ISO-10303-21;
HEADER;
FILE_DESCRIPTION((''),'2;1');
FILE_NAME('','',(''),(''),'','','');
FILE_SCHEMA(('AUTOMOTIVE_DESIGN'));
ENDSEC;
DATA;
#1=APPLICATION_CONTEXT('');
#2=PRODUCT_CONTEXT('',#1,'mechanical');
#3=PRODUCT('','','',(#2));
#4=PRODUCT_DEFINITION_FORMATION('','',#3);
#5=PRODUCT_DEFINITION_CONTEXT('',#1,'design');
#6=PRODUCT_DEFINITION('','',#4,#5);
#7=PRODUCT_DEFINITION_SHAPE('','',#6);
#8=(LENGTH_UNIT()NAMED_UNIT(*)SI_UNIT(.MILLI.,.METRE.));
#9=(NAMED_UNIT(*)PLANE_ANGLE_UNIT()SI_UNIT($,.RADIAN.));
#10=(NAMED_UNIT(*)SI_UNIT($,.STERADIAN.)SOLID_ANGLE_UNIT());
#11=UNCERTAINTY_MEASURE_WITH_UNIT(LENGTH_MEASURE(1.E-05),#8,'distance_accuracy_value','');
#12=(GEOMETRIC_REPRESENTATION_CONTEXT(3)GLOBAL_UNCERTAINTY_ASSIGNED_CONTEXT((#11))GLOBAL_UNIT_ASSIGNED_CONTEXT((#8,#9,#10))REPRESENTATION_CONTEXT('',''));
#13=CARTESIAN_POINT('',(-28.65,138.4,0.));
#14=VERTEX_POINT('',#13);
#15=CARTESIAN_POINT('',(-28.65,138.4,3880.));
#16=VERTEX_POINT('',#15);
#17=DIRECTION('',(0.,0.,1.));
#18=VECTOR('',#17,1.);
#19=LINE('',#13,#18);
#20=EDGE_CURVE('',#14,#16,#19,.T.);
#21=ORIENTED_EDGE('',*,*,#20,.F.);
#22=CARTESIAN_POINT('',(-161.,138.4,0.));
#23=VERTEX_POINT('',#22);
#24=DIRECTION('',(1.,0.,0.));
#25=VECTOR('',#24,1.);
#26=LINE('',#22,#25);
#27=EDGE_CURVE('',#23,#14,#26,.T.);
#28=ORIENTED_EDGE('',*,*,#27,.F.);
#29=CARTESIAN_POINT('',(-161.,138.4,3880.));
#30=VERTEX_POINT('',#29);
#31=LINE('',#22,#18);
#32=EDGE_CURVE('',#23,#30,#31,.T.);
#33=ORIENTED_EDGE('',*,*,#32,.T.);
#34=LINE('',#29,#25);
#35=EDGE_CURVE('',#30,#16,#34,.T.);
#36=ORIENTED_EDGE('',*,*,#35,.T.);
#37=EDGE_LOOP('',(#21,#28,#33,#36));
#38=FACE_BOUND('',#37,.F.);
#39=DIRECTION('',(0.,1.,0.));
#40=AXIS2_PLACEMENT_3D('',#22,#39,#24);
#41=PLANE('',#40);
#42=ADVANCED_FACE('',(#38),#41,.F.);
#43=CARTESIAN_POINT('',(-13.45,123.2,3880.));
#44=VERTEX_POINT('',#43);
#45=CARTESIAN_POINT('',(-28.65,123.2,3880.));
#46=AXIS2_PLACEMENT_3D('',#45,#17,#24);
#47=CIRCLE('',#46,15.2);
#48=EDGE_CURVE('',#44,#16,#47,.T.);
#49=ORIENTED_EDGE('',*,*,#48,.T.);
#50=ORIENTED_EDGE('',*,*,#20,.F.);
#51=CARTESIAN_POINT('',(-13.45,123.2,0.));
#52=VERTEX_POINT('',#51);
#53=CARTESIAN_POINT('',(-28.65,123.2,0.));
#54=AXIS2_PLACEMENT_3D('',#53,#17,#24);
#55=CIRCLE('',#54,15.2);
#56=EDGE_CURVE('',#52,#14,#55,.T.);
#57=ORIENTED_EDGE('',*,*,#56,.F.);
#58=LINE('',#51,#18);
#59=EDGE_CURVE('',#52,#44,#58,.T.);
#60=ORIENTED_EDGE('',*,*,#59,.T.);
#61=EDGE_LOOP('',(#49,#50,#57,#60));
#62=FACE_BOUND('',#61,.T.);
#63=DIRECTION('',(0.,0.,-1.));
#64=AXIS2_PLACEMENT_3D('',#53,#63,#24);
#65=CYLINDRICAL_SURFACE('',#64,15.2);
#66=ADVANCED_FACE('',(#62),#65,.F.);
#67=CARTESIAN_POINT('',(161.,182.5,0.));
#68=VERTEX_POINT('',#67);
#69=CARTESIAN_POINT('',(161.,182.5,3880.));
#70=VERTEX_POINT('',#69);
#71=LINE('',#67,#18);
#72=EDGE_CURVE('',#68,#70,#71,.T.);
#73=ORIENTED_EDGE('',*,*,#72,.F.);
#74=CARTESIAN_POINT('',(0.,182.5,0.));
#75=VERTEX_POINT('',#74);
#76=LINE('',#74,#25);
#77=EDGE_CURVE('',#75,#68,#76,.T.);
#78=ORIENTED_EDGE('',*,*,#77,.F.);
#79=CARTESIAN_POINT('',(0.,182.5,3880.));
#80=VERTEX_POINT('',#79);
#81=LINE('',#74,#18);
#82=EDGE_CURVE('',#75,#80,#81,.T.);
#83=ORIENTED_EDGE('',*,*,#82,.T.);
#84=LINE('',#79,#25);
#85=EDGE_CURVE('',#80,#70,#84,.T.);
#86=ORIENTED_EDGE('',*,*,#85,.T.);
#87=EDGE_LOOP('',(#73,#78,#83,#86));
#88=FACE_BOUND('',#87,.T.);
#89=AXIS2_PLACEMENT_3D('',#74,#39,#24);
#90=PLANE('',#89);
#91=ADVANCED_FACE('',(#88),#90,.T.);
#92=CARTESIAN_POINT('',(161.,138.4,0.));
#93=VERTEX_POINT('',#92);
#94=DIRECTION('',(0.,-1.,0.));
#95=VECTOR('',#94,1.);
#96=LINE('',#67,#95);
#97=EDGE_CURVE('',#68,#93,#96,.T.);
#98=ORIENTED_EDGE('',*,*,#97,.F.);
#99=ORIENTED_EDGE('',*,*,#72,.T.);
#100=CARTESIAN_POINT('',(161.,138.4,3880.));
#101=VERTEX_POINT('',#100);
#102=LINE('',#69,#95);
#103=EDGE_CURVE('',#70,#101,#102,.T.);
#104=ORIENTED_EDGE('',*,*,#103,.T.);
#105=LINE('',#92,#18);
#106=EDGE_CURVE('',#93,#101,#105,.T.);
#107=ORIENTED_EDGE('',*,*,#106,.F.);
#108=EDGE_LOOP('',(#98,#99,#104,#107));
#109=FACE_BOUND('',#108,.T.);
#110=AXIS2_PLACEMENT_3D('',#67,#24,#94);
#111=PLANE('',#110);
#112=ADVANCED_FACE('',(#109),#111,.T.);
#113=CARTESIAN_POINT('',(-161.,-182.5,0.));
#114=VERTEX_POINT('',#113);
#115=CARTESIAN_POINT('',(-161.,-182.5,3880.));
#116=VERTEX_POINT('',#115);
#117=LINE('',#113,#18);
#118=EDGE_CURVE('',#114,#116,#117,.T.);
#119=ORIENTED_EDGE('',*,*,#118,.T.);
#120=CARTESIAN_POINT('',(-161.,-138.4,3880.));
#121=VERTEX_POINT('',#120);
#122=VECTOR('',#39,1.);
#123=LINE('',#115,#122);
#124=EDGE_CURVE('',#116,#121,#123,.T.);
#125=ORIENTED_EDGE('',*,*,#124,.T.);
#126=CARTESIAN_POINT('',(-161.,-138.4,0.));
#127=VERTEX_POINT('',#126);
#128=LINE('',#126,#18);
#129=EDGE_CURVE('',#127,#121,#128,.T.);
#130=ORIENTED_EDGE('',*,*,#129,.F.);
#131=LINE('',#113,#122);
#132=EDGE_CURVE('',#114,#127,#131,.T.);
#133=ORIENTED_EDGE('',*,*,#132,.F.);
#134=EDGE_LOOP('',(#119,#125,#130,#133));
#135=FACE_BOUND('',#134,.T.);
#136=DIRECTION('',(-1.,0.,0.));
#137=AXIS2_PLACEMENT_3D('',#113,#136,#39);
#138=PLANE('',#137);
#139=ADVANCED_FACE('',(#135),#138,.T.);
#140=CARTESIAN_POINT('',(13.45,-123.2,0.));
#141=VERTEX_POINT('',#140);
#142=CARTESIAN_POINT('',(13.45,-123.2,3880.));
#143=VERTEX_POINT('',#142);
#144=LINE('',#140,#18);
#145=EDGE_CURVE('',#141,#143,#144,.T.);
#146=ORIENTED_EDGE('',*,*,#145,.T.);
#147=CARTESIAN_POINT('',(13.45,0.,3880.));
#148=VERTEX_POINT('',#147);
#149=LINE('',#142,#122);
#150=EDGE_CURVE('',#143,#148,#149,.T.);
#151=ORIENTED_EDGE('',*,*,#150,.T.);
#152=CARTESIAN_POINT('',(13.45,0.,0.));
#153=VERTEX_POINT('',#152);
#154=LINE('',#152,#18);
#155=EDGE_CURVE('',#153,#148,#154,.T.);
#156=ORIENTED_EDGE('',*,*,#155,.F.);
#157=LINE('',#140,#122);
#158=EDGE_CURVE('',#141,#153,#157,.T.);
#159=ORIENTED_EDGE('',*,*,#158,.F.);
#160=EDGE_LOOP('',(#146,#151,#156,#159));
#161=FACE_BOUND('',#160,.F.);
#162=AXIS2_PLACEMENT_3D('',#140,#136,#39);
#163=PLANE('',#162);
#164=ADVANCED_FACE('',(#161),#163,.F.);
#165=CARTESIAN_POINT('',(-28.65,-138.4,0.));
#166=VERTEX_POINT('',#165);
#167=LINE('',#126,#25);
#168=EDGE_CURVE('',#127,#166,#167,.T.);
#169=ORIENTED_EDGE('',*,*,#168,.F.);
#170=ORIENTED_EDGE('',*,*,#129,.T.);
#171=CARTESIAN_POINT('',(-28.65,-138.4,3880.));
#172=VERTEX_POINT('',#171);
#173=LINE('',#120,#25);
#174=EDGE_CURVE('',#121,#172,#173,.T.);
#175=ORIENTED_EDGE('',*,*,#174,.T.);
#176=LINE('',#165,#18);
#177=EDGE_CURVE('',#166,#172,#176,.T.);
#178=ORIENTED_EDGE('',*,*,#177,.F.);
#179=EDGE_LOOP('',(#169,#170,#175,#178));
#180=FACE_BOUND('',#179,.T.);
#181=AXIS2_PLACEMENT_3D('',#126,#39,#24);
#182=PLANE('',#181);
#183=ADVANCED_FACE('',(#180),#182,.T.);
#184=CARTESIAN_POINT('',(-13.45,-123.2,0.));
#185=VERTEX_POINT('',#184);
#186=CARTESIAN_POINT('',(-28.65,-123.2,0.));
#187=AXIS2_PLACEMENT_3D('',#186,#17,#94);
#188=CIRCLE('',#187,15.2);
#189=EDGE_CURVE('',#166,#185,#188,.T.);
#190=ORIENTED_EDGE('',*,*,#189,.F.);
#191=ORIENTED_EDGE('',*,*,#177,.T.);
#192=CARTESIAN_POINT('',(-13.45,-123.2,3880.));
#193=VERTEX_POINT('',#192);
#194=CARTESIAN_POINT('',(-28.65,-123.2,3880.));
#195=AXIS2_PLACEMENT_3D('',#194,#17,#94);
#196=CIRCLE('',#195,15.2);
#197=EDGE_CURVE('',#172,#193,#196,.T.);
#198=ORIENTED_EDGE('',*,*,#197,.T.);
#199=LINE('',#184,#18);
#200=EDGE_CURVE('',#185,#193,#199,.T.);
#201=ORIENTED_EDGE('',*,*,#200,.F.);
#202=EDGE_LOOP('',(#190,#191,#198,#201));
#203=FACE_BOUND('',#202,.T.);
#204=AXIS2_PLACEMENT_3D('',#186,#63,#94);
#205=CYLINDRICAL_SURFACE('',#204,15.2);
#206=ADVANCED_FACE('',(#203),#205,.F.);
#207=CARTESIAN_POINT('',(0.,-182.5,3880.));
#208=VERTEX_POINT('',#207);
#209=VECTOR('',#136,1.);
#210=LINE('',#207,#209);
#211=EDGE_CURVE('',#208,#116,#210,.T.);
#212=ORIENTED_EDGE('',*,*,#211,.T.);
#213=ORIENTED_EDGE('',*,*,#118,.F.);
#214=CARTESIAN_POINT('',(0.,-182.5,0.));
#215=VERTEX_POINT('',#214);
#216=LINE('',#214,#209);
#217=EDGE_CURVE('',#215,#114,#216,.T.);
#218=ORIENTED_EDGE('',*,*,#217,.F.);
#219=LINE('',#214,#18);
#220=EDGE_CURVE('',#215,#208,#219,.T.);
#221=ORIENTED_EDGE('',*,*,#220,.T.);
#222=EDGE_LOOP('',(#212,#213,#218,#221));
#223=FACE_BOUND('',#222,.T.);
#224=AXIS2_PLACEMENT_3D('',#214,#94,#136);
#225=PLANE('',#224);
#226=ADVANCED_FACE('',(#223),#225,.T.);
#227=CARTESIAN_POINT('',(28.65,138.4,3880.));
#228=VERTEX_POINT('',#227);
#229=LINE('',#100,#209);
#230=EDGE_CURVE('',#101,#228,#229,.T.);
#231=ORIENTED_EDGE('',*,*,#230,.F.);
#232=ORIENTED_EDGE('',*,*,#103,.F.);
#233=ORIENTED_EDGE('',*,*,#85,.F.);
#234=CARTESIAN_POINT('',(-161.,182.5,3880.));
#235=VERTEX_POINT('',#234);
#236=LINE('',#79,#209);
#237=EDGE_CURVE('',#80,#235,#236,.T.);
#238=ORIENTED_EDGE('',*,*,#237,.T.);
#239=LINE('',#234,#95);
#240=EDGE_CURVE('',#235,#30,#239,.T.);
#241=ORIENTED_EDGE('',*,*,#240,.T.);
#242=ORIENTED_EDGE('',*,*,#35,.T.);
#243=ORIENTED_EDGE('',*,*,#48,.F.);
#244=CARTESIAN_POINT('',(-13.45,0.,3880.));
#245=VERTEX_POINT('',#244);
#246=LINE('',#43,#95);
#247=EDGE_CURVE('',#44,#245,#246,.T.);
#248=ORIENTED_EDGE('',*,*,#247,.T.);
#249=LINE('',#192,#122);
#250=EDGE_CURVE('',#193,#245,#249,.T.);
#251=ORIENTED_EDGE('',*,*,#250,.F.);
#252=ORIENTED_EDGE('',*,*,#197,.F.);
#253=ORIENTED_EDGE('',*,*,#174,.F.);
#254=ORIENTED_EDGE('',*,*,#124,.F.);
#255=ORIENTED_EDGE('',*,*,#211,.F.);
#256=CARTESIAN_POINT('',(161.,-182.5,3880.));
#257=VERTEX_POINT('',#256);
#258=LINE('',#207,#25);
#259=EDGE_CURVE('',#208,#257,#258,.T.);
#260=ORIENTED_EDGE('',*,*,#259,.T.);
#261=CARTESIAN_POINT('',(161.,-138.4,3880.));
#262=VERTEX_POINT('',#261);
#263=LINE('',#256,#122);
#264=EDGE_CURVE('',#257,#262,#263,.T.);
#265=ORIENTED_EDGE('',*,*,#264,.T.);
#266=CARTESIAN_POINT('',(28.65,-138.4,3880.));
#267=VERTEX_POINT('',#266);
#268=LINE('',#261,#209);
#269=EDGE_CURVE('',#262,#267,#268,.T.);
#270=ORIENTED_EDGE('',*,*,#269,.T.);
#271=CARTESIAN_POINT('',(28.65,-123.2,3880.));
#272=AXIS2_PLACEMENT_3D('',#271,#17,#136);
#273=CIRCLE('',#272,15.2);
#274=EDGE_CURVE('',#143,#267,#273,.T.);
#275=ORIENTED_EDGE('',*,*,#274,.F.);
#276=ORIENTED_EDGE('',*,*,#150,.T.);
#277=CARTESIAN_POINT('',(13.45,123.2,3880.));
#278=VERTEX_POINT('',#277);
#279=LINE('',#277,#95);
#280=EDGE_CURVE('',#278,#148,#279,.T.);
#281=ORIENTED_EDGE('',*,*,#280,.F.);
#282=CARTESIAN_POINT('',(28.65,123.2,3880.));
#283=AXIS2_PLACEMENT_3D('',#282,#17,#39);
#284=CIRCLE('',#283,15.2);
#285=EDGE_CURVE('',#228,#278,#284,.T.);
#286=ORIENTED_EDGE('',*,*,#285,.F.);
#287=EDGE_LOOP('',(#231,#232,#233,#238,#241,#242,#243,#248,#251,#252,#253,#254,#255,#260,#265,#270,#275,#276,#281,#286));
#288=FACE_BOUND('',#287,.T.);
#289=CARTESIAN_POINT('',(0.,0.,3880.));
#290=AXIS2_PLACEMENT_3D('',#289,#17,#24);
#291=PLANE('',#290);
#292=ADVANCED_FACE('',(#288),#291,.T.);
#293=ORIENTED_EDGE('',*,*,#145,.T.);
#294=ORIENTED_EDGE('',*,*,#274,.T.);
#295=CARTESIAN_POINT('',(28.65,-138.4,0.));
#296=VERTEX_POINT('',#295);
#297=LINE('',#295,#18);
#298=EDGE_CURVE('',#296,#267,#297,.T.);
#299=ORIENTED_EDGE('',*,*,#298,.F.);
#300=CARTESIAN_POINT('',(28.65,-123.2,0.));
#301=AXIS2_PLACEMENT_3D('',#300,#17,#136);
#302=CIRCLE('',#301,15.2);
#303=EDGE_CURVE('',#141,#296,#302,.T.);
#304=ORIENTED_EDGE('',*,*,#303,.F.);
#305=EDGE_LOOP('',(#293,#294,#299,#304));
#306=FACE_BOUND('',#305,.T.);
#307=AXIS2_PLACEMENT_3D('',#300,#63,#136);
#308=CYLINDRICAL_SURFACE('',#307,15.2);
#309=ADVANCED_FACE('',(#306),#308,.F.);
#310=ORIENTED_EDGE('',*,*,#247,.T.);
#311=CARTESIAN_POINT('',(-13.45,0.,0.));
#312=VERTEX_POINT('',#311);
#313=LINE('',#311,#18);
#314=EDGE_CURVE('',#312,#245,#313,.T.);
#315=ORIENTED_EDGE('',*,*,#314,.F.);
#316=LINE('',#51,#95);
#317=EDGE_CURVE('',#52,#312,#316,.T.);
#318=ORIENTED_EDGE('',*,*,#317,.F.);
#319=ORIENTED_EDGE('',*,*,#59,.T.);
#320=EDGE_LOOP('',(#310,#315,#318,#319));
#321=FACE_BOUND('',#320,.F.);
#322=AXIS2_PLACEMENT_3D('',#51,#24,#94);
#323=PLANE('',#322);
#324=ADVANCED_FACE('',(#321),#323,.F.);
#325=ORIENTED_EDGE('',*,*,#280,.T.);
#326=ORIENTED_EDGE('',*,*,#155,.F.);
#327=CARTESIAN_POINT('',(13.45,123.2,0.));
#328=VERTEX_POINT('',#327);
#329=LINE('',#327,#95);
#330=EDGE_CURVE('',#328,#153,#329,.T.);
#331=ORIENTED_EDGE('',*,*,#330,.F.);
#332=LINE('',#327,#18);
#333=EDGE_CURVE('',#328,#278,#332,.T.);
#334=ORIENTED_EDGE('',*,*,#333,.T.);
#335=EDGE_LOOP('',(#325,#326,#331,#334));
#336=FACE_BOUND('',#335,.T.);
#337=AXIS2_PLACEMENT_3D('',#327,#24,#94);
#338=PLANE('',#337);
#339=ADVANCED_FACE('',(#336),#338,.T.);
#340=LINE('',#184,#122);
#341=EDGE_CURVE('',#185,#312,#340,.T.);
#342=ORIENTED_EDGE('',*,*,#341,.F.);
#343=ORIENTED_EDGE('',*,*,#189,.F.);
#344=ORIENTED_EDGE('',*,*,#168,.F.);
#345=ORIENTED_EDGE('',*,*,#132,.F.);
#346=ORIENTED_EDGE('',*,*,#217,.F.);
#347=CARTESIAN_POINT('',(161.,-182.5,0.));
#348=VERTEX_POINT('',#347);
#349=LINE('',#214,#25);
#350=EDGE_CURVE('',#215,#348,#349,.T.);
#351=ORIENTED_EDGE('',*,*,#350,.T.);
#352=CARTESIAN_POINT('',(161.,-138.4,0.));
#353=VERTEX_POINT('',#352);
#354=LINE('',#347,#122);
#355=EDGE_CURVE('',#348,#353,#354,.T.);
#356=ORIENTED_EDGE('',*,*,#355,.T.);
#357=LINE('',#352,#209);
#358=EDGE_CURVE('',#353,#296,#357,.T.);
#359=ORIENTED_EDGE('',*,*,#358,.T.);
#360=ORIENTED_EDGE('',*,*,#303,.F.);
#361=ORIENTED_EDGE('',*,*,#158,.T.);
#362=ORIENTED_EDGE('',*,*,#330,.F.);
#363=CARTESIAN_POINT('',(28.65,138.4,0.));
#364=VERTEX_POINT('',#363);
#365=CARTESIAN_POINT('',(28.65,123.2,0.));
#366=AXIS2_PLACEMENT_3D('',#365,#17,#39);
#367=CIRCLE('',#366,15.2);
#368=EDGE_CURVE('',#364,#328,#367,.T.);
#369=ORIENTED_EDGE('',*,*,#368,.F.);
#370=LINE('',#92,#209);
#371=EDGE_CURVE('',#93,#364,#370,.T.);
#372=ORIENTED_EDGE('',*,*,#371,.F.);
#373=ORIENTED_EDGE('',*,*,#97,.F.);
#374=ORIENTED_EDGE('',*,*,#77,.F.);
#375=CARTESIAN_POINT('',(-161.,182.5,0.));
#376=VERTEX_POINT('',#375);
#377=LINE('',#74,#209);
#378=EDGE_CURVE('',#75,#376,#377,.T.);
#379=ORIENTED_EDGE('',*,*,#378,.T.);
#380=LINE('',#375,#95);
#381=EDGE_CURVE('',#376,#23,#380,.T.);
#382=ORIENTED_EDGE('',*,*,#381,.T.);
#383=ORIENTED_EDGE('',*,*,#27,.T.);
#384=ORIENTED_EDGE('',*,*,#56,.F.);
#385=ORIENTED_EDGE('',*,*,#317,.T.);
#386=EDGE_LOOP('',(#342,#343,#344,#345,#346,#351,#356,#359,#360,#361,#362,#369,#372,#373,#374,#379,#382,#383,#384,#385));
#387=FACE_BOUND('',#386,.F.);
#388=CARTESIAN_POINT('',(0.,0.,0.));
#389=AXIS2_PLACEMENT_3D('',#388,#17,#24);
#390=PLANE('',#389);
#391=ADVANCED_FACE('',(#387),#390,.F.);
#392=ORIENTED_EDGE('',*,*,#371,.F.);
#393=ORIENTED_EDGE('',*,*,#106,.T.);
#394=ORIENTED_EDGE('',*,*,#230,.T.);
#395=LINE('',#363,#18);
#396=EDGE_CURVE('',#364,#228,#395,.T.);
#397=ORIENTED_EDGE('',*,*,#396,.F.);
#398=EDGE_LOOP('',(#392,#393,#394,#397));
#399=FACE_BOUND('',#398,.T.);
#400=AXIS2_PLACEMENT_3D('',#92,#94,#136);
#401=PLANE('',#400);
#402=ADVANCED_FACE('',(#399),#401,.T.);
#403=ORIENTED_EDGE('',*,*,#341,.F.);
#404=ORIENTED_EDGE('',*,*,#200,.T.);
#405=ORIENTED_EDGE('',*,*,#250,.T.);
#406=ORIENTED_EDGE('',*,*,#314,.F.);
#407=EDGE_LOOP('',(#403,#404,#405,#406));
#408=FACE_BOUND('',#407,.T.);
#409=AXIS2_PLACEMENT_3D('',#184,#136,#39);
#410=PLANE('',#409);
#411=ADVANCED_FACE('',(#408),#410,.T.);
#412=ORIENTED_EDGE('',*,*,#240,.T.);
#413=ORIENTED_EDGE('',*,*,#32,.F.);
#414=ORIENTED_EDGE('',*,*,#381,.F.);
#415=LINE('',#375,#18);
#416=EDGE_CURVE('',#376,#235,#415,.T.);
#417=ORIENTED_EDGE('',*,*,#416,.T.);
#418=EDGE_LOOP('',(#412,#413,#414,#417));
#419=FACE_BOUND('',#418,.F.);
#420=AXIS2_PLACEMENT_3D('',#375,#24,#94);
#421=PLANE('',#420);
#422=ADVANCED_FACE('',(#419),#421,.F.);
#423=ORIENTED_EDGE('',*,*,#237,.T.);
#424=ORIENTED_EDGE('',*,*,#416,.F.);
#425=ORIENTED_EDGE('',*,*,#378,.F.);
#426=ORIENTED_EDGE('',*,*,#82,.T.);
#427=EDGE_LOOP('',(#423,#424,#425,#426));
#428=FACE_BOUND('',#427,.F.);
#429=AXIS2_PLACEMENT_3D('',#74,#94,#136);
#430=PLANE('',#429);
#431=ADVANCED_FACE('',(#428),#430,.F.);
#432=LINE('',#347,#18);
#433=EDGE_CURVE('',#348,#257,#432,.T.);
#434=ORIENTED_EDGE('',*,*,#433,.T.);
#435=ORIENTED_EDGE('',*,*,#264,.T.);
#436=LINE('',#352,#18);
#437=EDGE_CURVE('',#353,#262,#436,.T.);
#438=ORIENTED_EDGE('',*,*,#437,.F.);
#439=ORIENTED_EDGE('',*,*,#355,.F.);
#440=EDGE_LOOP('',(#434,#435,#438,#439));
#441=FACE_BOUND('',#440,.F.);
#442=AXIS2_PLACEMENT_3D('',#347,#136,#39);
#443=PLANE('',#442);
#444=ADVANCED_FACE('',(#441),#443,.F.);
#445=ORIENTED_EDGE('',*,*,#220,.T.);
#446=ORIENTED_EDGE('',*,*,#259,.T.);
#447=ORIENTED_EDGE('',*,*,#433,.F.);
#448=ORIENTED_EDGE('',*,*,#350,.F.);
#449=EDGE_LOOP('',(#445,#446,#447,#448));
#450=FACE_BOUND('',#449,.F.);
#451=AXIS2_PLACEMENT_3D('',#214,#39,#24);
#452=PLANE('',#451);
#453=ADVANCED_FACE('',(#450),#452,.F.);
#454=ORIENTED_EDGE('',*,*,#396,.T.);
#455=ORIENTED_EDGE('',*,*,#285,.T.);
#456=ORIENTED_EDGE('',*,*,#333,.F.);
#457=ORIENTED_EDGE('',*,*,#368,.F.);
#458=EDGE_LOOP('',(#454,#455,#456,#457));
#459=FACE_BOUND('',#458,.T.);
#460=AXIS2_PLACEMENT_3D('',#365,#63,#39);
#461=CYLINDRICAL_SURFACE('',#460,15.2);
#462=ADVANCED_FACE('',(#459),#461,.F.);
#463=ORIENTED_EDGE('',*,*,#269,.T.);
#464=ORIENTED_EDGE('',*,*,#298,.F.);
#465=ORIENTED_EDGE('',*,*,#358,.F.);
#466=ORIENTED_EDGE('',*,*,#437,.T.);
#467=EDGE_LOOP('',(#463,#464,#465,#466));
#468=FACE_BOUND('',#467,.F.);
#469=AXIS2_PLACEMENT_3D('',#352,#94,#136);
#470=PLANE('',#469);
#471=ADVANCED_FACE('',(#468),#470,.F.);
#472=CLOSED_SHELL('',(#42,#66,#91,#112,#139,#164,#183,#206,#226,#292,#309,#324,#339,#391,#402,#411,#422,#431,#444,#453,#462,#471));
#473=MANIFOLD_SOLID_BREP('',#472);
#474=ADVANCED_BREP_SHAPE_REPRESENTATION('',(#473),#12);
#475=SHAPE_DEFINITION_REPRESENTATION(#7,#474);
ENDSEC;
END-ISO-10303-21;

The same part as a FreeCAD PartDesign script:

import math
import FreeCAD as App
import Part
import Sketcher

V = App.Vector

doc = App.newDocument("Part")
body = doc.addObject("PartDesign::Body", "Body")

# Sketch on XY plane
sketch1 = doc.addObject("Sketcher::SketchObject", "Sketch")
body.addObject(sketch1)
sketch1.AttachmentSupport = (doc.XY_Plane, [""])
sketch1.MapMode = "FlatFace"
sketch1.addGeometry(Part.LineSegment(V(-161, -138.4, 0), V(-161, -182.5, 0)), False)
sketch1.addGeometry(Part.LineSegment(V(-161, -182.5, 0), V(161, -182.5, 0)), False)
sketch1.addGeometry(Part.LineSegment(V(161, -182.5, 0), V(161, -138.4, 0)), False)
sketch1.addGeometry(Part.LineSegment(V(161, -138.4, 0), V(28.65, -138.4, 0)), False)
sketch1.addGeometry(Part.ArcOfCircle(Part.Circle(V(28.65, -123.2, 0), V(0, 0, 1), 15.2), math.radians(180), math.radians(270)), False)
sketch1.addGeometry(Part.LineSegment(V(13.45, -123.2, 0), V(13.45, 123.2, 0)), False)
sketch1.addGeometry(Part.ArcOfCircle(Part.Circle(V(28.65, 123.2, 0), V(0, 0, 1), 15.2), math.radians(90), math.radians(180)), False)
sketch1.addGeometry(Part.LineSegment(V(28.65, 138.4, 0), V(161, 138.4, 0)), False)
sketch1.addGeometry(Part.LineSegment(V(161, 138.4, 0), V(161, 182.5, 0)), False)
sketch1.addGeometry(Part.LineSegment(V(161, 182.5, 0), V(-161, 182.5, 0)), False)
sketch1.addGeometry(Part.LineSegment(V(-161, 182.5, 0), V(-161, 138.4, 0)), False)
sketch1.addGeometry(Part.LineSegment(V(-161, 138.4, 0), V(-28.65, 138.4, 0)), False)
sketch1.addGeometry(Part.ArcOfCircle(Part.Circle(V(-28.65, 123.2, 0), V(0, 0, 1), 15.2), math.radians(0), math.radians(90)), False)
sketch1.addGeometry(Part.LineSegment(V(-13.45, 123.2, 0), V(-13.45, -123.2, 0)), False)
sketch1.addGeometry(Part.ArcOfCircle(Part.Circle(V(-28.65, -123.2, 0), V(0, 0, 1), 15.2), math.radians(-90), math.radians(0)), False)
sketch1.addGeometry(Part.LineSegment(V(-28.65, -138.4, 0), V(-161, -138.4, 0)), False)
sketch1.addConstraint(Sketcher.Constraint("Coincident", 0, 2, 1, 1))
sketch1.addConstraint(Sketcher.Constraint("Coincident", 1, 2, 2, 1))
sketch1.addConstraint(Sketcher.Constraint("Coincident", 2, 2, 3, 1))
sketch1.addConstraint(Sketcher.Constraint("Tangent", 3, 2, 4, 2))
sketch1.addConstraint(Sketcher.Constraint("Tangent", 4, 1, 5, 1))
sketch1.addConstraint(Sketcher.Constraint("Tangent", 5, 2, 6, 2))
sketch1.addConstraint(Sketcher.Constraint("Tangent", 6, 1, 7, 1))
sketch1.addConstraint(Sketcher.Constraint("Coincident", 7, 2, 8, 1))
sketch1.addConstraint(Sketcher.Constraint("Coincident", 8, 2, 9, 1))
sketch1.addConstraint(Sketcher.Constraint("Coincident", 9, 2, 10, 1))
sketch1.addConstraint(Sketcher.Constraint("Coincident", 10, 2, 11, 1))
sketch1.addConstraint(Sketcher.Constraint("Tangent", 11, 2, 12, 2))
sketch1.addConstraint(Sketcher.Constraint("Tangent", 12, 1, 13, 1))
sketch1.addConstraint(Sketcher.Constraint("Tangent", 13, 2, 14, 2))
sketch1.addConstraint(Sketcher.Constraint("Tangent", 14, 1, 15, 1))
sketch1.addConstraint(Sketcher.Constraint("Coincident", 15, 2, 0, 1))
sketch1.addConstraint(Sketcher.Constraint("Vertical", 0))
sketch1.addConstraint(Sketcher.Constraint("Horizontal", 1))
sketch1.addConstraint(Sketcher.Constraint("Vertical", 2))
sketch1.addConstraint(Sketcher.Constraint("Horizontal", 3))
sketch1.addConstraint(Sketcher.Constraint("Vertical", 5))
sketch1.addConstraint(Sketcher.Constraint("Horizontal", 7))
sketch1.addConstraint(Sketcher.Constraint("Vertical", 8))
sketch1.addConstraint(Sketcher.Constraint("Horizontal", 9))
sketch1.addConstraint(Sketcher.Constraint("Vertical", 10))
sketch1.addConstraint(Sketcher.Constraint("Horizontal", 11))
sketch1.addConstraint(Sketcher.Constraint("Vertical", 13))
sketch1.addConstraint(Sketcher.Constraint("Horizontal", 15))
sketch1.addConstraint(Sketcher.Constraint("Equal", 4, 6))
sketch1.addConstraint(Sketcher.Constraint("Equal", 6, 12))
sketch1.addConstraint(Sketcher.Constraint("Equal", 12, 14))
sketch1.addConstraint(Sketcher.Constraint("Symmetric", 4, 3, 12, 3, -1, 1))
sketch1.addConstraint(Sketcher.Constraint("Symmetric", 0, 2, 8, 2, -1, 1))
sketch1.addConstraint(Sketcher.Constraint("Symmetric", 7, 2, 10, 2, -2))
sketch1.addConstraint(Sketcher.Constraint("Symmetric", 2, 2, 15, 2, -2))
sketch1.addConstraint(Sketcher.Constraint("Radius", 4, 15.2))
sketch1.addConstraint(Sketcher.Constraint("DistanceY", 0, 2, 0, 1, 44.1))
sketch1.addConstraint(Sketcher.Constraint("DistanceX", 0, 2, -1, 1, 161.0))
sketch1.addConstraint(Sketcher.Constraint("DistanceY", 0, 2, -1, 1, 182.5))
sketch1.addConstraint(Sketcher.Constraint("DistanceX", -1, 1, 4, 1, 13.45))
pad1 = doc.addObject("PartDesign::Pad", "Pad")
body.addObject(pad1)
pad1.Profile = sketch1
pad1.Length = 3880

doc.recompute()
